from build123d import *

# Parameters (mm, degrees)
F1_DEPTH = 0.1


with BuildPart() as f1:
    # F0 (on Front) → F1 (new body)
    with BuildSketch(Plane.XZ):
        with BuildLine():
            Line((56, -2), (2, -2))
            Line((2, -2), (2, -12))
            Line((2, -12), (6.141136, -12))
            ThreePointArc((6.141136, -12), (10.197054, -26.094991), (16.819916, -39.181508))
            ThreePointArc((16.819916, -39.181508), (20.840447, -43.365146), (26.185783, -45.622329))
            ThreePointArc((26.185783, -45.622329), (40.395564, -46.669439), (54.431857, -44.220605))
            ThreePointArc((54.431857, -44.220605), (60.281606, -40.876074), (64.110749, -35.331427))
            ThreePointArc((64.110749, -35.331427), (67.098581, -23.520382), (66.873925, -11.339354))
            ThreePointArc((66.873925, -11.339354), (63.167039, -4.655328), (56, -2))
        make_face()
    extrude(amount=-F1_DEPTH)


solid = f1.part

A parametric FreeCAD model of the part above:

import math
import FreeCAD as App
import Part
import Sketcher

V = App.Vector
Q = App.Units.Quantity

doc = App.newDocument("Part")
body = doc.addObject("PartDesign::Body", "Body")

# Sketch on XZ plane
sketch1 = doc.addObject("Sketcher::SketchObject", "Sketch")
body.addObject(sketch1)
sketch1.AttachmentSupport = (doc.XZ_Plane, [""])
sketch1.MapMode = "FlatFace"
sketch1.addGeometry(Part.LineSegment(V(56, -2, 0), V(2, -2, 0)), False)
sketch1.addGeometry(Part.LineSegment(V(2, -2, 0), V(2, -12, 0)), False)
sketch1.addGeometry(Part.LineSegment(V(2, -12, 0), V(6.1, -12, 0)), False)
sketch1.addGeometry(Part.ArcOfCircle(Part.Circle(V(82.8, 2.4, 0), V(0, 0, 1), 78), math.radians(-169), math.radians(-148)), False)
sketch1.addGeometry(Part.ArcOfCircle(Part.Circle(V(29, -31.5, 0), V(0, 0, 1), 14.4), math.radians(-148), math.radians(-101)), False)
sketch1.addGeometry(Part.ArcOfCircle(Part.Circle(V(37.5, 11.3, 0), V(0, 0, 1), 58), math.radians(-101), math.radians(-73)), False)
sketch1.addGeometry(Part.ArcOfCircle(Part.Circle(V(50, -29.7, 0), V(0, 0, 1), 15.2), math.radians(-73), math.radians(-22)), False)
sketch1.addGeometry(Part.ArcOfCircle(Part.Circle(V(21.5, -18.3, 0), V(0, 0, 1), 45.9), math.radians(-22), math.radians(9)), False)
sketch1.addGeometry(Part.ArcOfCircle(Part.Circle(V(56, -13, 0), V(0, 0, 1), 11), math.radians(9), math.radians(90)), False)
sketch1.addConstraint(Sketcher.Constraint("Coincident", 0, 2, 1, 1))
sketch1.addConstraint(Sketcher.Constraint("Coincident", 1, 2, 2, 1))
sketch1.addConstraint(Sketcher.Constraint("Coincident", 2, 2, 3, 1))
sketch1.addConstraint(Sketcher.Constraint("Tangent", 3, 2, 4, 1))
sketch1.addConstraint(Sketcher.Constraint("Tangent", 4, 2, 5, 1))
sketch1.addConstraint(Sketcher.Constraint("Tangent", 5, 2, 6, 1))
sketch1.addConstraint(Sketcher.Constraint("Tangent", 6, 2, 7, 1))
sketch1.addConstraint(Sketcher.Constraint("Tangent", 7, 2, 8, 1))
sketch1.addConstraint(Sketcher.Constraint("Tangent", 8, 2, 0, 1))
sketch1.addConstraint(Sketcher.Constraint("Horizontal", 0))
sketch1.addConstraint(Sketcher.Constraint("Vertical", 1))
sketch1.addConstraint(Sketcher.Constraint("Horizontal", 2))
sketch1.addConstraint(Sketcher.Constraint("Radius", 8, Q("10.999999 mm")))
sketch1.addConstraint(Sketcher.Constraint("DistanceX", 0, 2, 0, 1, Q("54 mm")))
sketch1.addConstraint(Sketcher.Constraint("DistanceY", 1, 2, 1, 1, Q("10 mm")))
sketch1.addConstraint(Sketcher.Constraint("DistanceX", -1, 1, 4, 3, Q("29.000001 mm")))
sketch1.addConstraint(Sketcher.Constraint("DistanceX", -1, 1, 8, 3, Q("56 mm")))
sketch1.addConstraint(Sketcher.Constraint("DistanceY", 8, 3, -1, 1, Q("12.999999 mm")))
sketch1.addConstraint(Sketcher.Constraint("DistanceX", 7, 3, 6, 3, Q("28.5 mm")))
sketch1.addConstraint(Sketcher.Constraint("Radius", 3, Q("78.000029 mm")))
sketch1.addConstraint(Sketcher.Constraint("Radius", 5, Q("58.000012 mm")))
sketch1.addConstraint(Sketcher.Constraint("Radius", 4, Q("14.400003 mm")))
sketch1.addConstraint(Sketcher.Constraint("Radius", 6, Q("15.200007 mm")))
sketch1.addConstraint(Sketcher.Constraint("Radius", 7, Q("45.900006 mm")))
sketch1.addConstraint(Sketcher.Constraint("DistanceX", 2, 1, 2, 2, Q("4.141136 mm")))
sketch1.addConstraint(Sketcher.Constraint("DistanceY", -1, 1, 3, 3, Q("2.42667 mm")))
sketch1.addConstraint(Sketcher.Constraint("DistanceY", 4, 2, -1, 1, Q("45.622329 mm")))
pad1 = doc.addObject("PartDesign::Pad", "Pad")
body.addObject(pad1)
pad1.Profile = sketch1
pad1.Length = 0.1
pad1.Reversed = True

doc.recompute()
